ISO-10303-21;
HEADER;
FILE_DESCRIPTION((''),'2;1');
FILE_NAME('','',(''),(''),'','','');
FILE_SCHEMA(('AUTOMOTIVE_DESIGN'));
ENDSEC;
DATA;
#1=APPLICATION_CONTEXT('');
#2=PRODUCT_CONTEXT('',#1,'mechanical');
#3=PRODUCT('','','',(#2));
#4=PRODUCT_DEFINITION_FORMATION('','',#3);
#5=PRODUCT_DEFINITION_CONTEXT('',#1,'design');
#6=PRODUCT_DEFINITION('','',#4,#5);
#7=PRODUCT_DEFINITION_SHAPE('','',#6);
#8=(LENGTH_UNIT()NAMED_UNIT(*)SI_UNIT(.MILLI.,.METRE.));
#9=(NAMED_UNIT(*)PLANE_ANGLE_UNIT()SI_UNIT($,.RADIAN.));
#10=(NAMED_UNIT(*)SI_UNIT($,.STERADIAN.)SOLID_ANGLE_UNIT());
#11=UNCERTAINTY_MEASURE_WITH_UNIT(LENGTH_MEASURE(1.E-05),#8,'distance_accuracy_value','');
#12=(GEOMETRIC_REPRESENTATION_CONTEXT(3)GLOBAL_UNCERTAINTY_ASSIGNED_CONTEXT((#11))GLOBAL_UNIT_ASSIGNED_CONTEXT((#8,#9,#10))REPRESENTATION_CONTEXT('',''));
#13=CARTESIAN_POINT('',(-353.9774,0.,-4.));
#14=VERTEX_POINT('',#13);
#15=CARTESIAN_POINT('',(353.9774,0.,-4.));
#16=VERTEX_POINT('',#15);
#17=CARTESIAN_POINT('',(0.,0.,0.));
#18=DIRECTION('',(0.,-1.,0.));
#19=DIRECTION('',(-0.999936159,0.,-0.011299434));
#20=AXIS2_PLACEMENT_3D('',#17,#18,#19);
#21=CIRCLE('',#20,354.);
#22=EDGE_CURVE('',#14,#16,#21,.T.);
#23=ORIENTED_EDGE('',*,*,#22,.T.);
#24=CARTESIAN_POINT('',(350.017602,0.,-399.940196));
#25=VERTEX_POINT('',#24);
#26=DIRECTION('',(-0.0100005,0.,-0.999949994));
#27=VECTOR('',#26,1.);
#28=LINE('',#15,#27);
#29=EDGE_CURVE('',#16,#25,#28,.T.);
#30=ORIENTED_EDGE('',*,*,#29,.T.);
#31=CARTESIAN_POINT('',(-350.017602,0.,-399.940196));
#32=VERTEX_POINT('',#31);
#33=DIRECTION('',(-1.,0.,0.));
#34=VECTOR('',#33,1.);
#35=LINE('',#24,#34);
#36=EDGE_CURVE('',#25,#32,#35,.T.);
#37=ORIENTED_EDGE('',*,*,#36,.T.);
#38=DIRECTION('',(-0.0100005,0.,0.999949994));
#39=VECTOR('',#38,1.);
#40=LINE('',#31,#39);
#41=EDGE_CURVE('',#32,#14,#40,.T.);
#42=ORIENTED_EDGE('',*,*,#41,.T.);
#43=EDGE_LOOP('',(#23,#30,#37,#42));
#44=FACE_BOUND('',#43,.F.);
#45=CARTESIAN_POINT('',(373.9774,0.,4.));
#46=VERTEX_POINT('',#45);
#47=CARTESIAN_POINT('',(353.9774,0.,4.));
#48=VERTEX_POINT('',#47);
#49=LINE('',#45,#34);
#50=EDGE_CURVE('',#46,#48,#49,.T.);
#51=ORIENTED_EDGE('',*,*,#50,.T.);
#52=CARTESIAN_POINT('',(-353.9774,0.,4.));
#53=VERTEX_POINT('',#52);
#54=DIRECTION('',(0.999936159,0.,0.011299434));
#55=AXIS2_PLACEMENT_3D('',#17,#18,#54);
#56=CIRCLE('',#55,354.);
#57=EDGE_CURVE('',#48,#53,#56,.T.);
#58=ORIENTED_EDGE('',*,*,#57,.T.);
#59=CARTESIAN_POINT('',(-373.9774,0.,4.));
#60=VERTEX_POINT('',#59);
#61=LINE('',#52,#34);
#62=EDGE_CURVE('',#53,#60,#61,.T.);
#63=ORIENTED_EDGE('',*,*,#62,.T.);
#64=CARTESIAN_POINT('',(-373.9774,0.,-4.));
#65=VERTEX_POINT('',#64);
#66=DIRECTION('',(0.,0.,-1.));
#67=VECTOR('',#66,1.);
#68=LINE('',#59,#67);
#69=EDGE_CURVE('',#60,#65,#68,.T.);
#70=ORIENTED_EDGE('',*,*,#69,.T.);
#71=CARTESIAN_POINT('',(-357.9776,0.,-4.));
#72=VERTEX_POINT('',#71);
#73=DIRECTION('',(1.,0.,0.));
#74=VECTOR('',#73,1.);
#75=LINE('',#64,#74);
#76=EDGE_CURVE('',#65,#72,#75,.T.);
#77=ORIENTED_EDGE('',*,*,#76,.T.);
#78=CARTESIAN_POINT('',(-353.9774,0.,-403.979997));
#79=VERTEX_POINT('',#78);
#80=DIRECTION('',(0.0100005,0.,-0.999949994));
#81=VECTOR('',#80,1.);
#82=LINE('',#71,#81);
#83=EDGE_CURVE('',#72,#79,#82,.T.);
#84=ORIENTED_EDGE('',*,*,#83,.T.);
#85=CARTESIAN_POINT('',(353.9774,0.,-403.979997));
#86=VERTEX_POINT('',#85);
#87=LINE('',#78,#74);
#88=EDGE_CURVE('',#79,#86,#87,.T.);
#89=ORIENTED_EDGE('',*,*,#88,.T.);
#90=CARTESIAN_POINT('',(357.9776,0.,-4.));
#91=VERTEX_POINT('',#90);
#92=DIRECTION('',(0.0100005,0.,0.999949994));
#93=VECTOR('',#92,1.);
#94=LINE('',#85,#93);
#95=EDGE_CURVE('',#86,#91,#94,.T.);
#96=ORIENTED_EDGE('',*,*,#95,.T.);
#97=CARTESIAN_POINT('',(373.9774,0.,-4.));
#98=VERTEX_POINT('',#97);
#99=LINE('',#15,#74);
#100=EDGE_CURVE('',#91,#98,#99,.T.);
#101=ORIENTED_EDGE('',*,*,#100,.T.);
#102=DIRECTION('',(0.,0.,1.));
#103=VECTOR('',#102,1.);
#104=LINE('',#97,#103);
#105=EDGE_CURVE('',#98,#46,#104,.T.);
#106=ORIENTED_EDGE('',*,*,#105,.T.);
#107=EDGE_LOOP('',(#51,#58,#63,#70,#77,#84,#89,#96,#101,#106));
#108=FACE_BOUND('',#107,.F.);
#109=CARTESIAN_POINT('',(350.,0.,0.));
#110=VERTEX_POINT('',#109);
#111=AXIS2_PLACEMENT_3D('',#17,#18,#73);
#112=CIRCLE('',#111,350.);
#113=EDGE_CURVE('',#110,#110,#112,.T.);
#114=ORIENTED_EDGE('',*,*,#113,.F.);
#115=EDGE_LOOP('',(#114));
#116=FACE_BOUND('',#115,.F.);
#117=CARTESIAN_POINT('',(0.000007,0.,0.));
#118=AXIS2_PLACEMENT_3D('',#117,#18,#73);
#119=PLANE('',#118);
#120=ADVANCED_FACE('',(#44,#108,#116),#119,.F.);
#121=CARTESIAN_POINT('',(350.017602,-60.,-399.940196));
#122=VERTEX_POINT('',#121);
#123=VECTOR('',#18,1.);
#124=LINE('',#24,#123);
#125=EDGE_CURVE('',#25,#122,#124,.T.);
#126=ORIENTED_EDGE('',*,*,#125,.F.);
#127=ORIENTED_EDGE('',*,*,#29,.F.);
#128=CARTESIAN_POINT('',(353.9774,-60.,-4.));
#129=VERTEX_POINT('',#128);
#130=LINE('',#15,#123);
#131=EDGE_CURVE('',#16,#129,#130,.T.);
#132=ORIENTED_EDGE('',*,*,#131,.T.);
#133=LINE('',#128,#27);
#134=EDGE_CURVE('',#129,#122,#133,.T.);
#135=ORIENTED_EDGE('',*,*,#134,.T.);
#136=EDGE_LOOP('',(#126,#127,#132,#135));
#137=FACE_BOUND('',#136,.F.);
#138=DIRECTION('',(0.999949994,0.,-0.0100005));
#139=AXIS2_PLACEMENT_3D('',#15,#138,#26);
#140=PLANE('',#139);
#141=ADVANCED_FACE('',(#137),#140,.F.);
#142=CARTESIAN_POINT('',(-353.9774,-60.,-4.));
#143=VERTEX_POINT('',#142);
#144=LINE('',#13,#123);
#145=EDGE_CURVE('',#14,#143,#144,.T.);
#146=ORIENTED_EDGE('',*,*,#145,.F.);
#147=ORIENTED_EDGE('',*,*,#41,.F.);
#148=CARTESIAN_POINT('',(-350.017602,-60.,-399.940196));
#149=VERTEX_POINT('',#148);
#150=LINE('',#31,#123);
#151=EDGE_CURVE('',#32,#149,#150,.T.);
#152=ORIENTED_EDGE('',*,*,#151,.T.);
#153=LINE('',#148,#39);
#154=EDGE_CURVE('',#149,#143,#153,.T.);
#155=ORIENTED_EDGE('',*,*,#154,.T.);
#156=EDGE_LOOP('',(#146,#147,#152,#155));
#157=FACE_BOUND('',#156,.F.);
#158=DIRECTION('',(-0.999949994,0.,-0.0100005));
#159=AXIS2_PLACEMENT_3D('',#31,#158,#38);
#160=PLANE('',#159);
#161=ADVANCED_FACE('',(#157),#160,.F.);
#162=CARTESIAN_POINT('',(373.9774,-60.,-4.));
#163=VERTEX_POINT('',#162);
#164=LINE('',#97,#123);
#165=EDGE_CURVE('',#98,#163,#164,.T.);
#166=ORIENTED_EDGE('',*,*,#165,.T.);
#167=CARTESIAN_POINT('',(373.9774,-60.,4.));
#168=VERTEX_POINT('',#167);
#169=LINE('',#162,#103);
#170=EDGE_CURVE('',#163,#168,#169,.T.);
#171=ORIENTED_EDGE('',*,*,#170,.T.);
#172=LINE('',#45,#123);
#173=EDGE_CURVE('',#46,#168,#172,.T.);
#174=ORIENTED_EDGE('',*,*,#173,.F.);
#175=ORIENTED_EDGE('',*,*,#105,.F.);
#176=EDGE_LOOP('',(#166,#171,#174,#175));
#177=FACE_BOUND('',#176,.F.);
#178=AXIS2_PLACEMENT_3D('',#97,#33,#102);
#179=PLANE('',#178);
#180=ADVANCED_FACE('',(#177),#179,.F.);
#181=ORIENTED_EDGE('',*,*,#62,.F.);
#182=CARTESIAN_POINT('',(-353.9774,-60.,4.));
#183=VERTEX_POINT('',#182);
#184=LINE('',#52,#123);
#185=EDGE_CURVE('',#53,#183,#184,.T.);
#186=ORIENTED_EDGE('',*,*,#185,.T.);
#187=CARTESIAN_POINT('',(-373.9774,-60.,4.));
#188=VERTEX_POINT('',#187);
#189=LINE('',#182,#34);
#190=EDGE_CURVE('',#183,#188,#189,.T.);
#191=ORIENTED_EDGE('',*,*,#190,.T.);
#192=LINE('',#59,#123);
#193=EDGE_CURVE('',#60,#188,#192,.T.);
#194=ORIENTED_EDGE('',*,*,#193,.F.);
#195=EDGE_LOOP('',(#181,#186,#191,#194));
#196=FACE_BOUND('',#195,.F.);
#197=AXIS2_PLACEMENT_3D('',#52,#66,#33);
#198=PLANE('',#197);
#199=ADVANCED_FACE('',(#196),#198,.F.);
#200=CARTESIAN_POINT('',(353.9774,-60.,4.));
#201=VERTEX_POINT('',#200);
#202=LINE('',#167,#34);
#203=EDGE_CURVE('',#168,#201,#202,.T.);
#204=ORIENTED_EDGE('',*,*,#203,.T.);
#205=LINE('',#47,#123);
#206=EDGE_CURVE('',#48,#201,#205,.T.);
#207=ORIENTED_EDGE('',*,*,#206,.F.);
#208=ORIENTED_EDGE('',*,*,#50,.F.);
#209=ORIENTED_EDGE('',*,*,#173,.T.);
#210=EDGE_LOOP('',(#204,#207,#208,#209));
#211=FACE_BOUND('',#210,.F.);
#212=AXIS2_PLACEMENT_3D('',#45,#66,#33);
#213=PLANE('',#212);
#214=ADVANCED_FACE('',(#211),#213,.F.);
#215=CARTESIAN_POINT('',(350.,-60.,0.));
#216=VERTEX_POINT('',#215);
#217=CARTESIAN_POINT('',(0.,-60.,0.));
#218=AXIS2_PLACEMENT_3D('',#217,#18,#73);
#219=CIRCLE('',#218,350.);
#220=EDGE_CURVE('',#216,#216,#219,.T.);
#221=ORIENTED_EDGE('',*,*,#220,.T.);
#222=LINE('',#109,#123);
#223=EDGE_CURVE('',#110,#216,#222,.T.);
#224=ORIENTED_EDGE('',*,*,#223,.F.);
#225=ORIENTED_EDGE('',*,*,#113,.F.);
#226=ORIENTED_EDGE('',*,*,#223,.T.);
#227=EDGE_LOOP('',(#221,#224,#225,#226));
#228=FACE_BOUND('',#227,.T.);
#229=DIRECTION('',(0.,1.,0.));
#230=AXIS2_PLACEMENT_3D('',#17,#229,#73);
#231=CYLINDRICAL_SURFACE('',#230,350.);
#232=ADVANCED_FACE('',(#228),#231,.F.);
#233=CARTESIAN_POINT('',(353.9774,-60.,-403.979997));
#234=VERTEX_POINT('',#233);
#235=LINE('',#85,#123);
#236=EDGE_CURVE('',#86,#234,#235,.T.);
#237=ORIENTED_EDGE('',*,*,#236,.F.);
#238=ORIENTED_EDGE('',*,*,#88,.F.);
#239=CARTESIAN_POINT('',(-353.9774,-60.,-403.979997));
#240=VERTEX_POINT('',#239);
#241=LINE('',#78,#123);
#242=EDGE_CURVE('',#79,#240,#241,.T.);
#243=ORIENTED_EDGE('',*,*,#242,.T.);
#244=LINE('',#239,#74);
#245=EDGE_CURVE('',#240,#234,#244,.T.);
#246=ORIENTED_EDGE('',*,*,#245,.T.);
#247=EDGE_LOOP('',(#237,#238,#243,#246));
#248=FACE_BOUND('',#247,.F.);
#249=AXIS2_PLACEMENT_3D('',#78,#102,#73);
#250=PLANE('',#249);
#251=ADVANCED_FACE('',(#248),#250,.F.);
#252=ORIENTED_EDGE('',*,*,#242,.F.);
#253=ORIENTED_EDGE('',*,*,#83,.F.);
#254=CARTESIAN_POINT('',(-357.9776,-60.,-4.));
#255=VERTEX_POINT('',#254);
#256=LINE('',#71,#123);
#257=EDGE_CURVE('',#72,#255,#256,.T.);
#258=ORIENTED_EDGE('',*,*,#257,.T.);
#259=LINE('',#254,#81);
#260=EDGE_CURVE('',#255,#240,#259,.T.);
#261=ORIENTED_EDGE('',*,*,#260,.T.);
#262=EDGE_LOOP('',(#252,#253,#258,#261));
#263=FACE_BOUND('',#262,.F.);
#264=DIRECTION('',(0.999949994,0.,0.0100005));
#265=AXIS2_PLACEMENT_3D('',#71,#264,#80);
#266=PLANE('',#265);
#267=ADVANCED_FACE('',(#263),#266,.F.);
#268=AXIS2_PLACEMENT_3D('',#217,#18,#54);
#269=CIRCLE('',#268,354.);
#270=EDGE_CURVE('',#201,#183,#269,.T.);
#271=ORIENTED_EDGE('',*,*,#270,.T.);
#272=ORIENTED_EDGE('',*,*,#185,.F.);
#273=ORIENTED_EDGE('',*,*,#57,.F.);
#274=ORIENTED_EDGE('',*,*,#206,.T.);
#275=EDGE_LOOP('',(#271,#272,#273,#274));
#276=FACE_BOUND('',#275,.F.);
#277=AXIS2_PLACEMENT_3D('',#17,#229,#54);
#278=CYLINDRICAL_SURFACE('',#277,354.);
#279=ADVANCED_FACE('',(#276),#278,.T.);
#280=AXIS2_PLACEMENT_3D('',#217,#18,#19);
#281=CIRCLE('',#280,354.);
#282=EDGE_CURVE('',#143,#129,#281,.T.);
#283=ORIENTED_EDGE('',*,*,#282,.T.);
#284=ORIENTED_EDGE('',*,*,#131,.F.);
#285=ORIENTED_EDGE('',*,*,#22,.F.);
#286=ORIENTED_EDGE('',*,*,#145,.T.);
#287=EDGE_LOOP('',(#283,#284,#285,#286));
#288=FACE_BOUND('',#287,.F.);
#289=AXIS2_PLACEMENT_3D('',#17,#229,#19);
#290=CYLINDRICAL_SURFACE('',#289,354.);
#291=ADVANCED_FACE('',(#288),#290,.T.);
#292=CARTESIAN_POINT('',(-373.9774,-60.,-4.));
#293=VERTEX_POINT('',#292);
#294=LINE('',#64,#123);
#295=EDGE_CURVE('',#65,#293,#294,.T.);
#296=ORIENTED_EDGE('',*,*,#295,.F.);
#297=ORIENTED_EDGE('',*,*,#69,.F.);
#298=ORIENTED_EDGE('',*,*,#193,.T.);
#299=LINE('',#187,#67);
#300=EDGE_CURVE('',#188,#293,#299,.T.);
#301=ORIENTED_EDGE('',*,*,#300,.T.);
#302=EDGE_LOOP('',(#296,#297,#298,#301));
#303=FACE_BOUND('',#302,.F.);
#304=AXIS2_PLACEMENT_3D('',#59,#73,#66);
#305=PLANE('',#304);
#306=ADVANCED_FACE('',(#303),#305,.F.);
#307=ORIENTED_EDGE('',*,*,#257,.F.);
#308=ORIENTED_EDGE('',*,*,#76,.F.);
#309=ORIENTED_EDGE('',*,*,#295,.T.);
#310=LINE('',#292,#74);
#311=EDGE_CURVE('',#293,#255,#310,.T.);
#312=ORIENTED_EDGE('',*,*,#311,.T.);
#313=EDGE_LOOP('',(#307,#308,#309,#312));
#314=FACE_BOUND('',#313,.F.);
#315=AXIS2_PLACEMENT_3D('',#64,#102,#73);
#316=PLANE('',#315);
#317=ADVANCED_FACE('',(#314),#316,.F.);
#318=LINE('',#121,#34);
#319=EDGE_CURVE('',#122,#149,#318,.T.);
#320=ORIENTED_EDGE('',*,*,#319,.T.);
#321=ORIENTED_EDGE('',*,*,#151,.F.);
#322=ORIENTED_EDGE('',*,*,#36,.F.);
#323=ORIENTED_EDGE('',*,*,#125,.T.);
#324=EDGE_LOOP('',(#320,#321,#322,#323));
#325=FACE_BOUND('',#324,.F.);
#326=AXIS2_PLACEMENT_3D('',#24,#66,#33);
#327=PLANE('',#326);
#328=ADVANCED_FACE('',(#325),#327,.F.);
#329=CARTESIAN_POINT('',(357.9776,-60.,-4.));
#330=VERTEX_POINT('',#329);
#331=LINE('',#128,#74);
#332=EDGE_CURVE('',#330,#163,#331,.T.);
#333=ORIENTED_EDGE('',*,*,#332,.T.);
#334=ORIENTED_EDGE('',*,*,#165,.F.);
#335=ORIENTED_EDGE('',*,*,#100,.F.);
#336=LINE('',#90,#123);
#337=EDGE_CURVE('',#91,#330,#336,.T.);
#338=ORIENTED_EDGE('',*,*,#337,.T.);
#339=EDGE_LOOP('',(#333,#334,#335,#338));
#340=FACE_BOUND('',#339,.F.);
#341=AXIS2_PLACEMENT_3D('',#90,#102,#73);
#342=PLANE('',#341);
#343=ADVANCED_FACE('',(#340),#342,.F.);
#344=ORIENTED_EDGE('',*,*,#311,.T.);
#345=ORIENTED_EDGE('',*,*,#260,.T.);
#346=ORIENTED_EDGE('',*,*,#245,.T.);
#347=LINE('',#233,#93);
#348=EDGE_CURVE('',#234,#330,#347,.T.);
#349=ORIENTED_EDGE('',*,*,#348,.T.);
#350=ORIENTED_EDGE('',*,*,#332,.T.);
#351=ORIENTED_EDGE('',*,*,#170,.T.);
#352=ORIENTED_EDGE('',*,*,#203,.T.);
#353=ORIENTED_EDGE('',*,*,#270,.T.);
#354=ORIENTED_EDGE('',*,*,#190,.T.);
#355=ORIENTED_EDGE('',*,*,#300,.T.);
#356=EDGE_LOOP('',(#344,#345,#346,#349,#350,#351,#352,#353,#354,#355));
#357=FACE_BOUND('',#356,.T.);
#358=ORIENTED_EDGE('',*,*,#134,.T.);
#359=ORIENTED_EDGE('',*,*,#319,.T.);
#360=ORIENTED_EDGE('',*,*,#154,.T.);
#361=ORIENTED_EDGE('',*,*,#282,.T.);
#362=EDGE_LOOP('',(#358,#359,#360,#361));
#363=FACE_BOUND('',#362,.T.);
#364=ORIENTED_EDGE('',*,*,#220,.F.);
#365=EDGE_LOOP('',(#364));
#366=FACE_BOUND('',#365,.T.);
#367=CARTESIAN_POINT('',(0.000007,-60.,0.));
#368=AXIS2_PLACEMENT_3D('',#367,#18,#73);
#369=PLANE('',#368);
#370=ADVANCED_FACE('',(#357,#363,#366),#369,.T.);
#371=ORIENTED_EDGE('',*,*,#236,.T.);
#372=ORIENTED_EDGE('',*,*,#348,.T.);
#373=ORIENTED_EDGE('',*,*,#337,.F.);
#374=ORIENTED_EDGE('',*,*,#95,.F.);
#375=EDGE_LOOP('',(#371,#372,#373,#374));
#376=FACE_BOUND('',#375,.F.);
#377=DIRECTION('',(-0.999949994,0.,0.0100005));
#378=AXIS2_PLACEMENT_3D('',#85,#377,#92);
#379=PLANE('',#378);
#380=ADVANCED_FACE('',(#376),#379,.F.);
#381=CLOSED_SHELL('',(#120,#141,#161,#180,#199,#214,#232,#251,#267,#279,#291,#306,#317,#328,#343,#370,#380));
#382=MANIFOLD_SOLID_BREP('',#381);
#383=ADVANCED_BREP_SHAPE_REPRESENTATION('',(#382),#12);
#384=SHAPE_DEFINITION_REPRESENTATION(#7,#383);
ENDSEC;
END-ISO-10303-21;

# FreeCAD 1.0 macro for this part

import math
import FreeCAD as App
import Part
import Sketcher

V = App.Vector

doc = App.newDocument("Part")
body = doc.addObject("PartDesign::Body", "Body")

# Sketch on XZ plane
sketch1 = body.newObject("Sketcher::SketchObject", "Sketch")
sketch1.AttachmentSupport = (doc.getObject("XZ_Plane"), [""])
sketch1.MapMode = "FlatFace"
sketch1.addGeometry([
    Part.ArcOfCircle(Part.Circle(V(0, 0, 0), V(0, 0, 1), 354), math.radians(0.647424), math.radians(179.352576)),  # 0
    Part.LineSegment(V(-353.9774, 4, 0), V(-373.9774, 4, 0)),  # 1
    Part.LineSegment(V(-373.9774, 4, 0), V(-373.9774, -4, 0)),  # 2
    Part.LineSegment(V(-373.9774, -4, 0), V(-357.9776, -4, 0)),  # 3
    Part.LineSegment(V(-357.9776, -4, 0), V(-353.9774, -403.979997, 0)),  # 4
    Part.LineSegment(V(-353.9774, -403.979997, 0), V(353.9774, -403.979997, 0)),  # 5
    Part.LineSegment(V(353.9774, -403.979997, 0), V(357.9776, -4, 0)),  # 6
    Part.LineSegment(V(357.9776, -4, 0), V(373.9774, -4, 0)),  # 7
    Part.LineSegment(V(373.9774, -4, 0), V(373.9774, 4, 0)),  # 8
    Part.LineSegment(V(373.9774, 4, 0), V(353.9774, 4, 0)),  # 9
    Part.LineSegment(V(-350.017602, -399.940196, 0), V(-353.9774, -4, 0)),  # 10
    Part.ArcOfCircle(Part.Circle(V(0, 0, 0), V(0, 0, 1), 354), math.radians(-179.352576), math.radians(-0.647424)),  # 11
    Part.LineSegment(V(353.9774, -4, 0), V(350.017602, -399.940196, 0)),  # 12
    Part.LineSegment(V(350.017602, -399.940196, 0), V(-350.017602, -399.940196, 0)),  # 13
    Part.Circle(V(0, 0, 0), V(0, 0, 1), 350),  # 14
], False)
sketch1.addConstraint([
    Sketcher.Constraint("Coincident", 0, 2, 1, 1),
    Sketcher.Constraint("Coincident", 1, 2, 2, 1),
    Sketcher.Constraint("Coincident", 2, 2, 3, 1),
    Sketcher.Constraint("Coincident", 3, 2, 4, 1),
    Sketcher.Constraint("Coincident", 4, 2, 5, 1),
    Sketcher.Constraint("Coincident", 5, 2, 6, 1),
    Sketcher.Constraint("Coincident", 6, 2, 7, 1),
    Sketcher.Constraint("Coincident", 7, 2, 8, 1),
    Sketcher.Constraint("Coincident", 8, 2, 9, 1),
    Sketcher.Constraint("Coincident", 9, 2, 0, 1),
    Sketcher.Constraint("Coincident", 10, 2, 11, 1),
    Sketcher.Constraint("Coincident", 11, 2, 12, 1),
    Sketcher.Constraint("Coincident", 12, 2, 13, 1),
    Sketcher.Constraint("Coincident", 13, 2, 10, 1),
    Sketcher.Constraint("Horizontal", 1),
    Sketcher.Constraint("Vertical", 2),
    Sketcher.Constraint("Horizontal", 3),
    Sketcher.Constraint("Horizontal", 5),
    Sketcher.Constraint("Horizontal", 7),
    Sketcher.Constraint("Vertical", 8),
    Sketcher.Constraint("Horizontal", 9),
    Sketcher.Constraint("Horizontal", 13),
    Sketcher.Constraint("Coincident", 0, 3, -1, 1),
    Sketcher.Constraint("Coincident", 11, 3, -1, 1),
    Sketcher.Constraint("Coincident", 14, 3, -1, 1),
    Sketcher.Constraint("Diameter", 14, 700.0),
    Sketcher.Constraint("Radius", 0, 354.0),
    Sketcher.Constraint("Radius", 11, 354.0),
    Sketcher.Constraint("DistanceX", 1, 2, 1, 1, 20.0),
    Sketcher.Constraint("DistanceX", 9, 2, 9, 1, 20.0),
    Sketcher.Constraint("DistanceY", 2, 2, 2, 1, 8.0),
    Sketcher.Constraint("DistanceY", 8, 1, 8, 2, 8.0),
    Sketcher.Constraint("Distance", 4, 400.0),
    Sketcher.Constraint("Distance", 6, 400.0),
    Sketcher.Constraint("DistanceY", -1, 1, 1, 2, 4.0),
    Sketcher.Constraint("DistanceY", 6, 2, -1, 1, 4.0),
    Sketcher.Constraint("DistanceY", 10, 2, -1, 1, 4.0),
    Sketcher.Constraint("DistanceY", 11, 2, -1, 1, 4.0),
    Sketcher.Constraint("DistanceX", 2, 2, 4, 2, 20.0),
    Sketcher.Constraint("DistanceX", 5, 2, 7, 2, 20.0),
    Sketcher.Constraint("DistanceX", 3, 1, 3, 2, 15.9998),
    Sketcher.Constraint("DistanceX", -1, 1, 12, 2, 350.017602),
    Sketcher.Constraint("DistanceX", 13, 2, -1, 1, 350.017602),
    Sketcher.Constraint("DistanceY", 5, 2, 12, 2, 4.039801),
])
pad1 = body.newObject("PartDesign::Pad", "Pad")
pad1.Profile = sketch1
pad1.Length = 60

doc.recompute()
